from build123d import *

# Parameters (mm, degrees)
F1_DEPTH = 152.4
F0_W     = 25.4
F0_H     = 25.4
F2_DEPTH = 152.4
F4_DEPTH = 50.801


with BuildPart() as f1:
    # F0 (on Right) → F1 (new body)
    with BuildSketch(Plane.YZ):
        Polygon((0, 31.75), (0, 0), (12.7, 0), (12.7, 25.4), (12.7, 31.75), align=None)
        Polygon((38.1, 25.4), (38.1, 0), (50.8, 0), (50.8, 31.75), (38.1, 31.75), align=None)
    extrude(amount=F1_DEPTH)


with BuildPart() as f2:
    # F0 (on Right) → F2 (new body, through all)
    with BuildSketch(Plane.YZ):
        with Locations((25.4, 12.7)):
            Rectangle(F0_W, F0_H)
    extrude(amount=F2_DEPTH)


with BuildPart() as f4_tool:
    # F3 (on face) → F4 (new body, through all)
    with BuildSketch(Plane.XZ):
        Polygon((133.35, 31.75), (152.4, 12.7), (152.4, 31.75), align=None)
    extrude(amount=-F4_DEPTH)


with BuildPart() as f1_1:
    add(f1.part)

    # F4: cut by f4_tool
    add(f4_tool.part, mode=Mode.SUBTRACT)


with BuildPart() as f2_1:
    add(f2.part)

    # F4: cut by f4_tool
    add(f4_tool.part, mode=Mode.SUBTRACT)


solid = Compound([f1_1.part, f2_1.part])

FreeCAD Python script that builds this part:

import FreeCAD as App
import Part
import Sketcher
from FreeCAD import Vector
Q = App.Units.Quantity

doc = App.newDocument("Part")
body = doc.addObject("PartDesign::Body", "Body")
body.AllowCompound = True

# Sketch on YZ plane
sketch1 = body.newObject("Sketcher::SketchObject", "Sketch")
sketch1.AttachmentSupport = (doc.getObject("YZ_Plane"), [""])
sketch1.MapMode = "FlatFace"
sketch1.addGeometry([
    Part.LineSegment(Vector(0, 32, 0), Vector(0, 0, 0)),  # 0
    Part.LineSegment(Vector(0, 0, 0), Vector(13, 0, 0)),  # 1
    Part.LineSegment(Vector(13, 0, 0), Vector(13, 32, 0)),  # 2
    Part.LineSegment(Vector(13, 32, 0), Vector(0, 32, 0)),  # 3
    Part.LineSegment(Vector(38, 0, 0), Vector(51, 0, 0)),  # 4
    Part.LineSegment(Vector(51, 0, 0), Vector(51, 32, 0)),  # 5
    Part.LineSegment(Vector(51, 32, 0), Vector(38, 32, 0)),  # 6
    Part.LineSegment(Vector(38, 32, 0), Vector(38, 0, 0)),  # 7
], False)
sketch1.addConstraint([
    Sketcher.Constraint("Coincident", 0, 2, 1, 1),
    Sketcher.Constraint("Coincident", 1, 2, 2, 1),
    Sketcher.Constraint("Coincident", 2, 2, 3, 1),
    Sketcher.Constraint("Coincident", 3, 2, 0, 1),
    Sketcher.Constraint("Coincident", 4, 2, 5, 1),
    Sketcher.Constraint("Coincident", 5, 2, 6, 1),
    Sketcher.Constraint("Coincident", 6, 2, 7, 1),
    Sketcher.Constraint("Coincident", 7, 2, 4, 1),
    Sketcher.Constraint("Vertical", 0),
    Sketcher.Constraint("Horizontal", 1),
    Sketcher.Constraint("Vertical", 2),
    Sketcher.Constraint("Horizontal", 3),
    Sketcher.Constraint("Horizontal", 4),
    Sketcher.Constraint("Vertical", 5),
    Sketcher.Constraint("Horizontal", 6),
    Sketcher.Constraint("Vertical", 7),
    Sketcher.Constraint("Coincident", 0, 2, -1, 1),
    Sketcher.Constraint("PointOnObject", 4, 2, -1),
    Sketcher.Constraint("Horizontal", 3, 2, 5, 2),
    Sketcher.Constraint("Equal", 3, 4),
    Sketcher.Constraint("DistanceX", 1, 1, 1, 2, Q("0.5 in")),
    Sketcher.Constraint("DistanceX", -1, 1, 4, 2, Q("2 in")),
    Sketcher.Constraint("DistanceY", 0, 2, 0, 1, Q("1.25 in")),
])
pad1 = body.newObject("PartDesign::Pad", "Pad")
pad1.Profile = sketch1
pad1.Length = Q("6 in")
body2 = doc.addObject("PartDesign::Body", "Body001")

# Sketch on YZ plane
sketch2 = body2.newObject("Sketcher::SketchObject", "Sketch001")
sketch2.AttachmentSupport = (doc.getObject("YZ_Plane001"), [""])
sketch2.MapMode = "FlatFace"
sketch2.addGeometry([
    Part.LineSegment(Vector(13, 25, 0), Vector(13, 0, 0)),
    Part.LineSegment(Vector(13, 0, 0), Vector(38, 0, 0)),
    Part.LineSegment(Vector(38, 0, 0), Vector(38, 25, 0)),
    Part.LineSegment(Vector(38, 25, 0), Vector(13, 25, 0)),
], False)
sketch2.addConstraint([
    Sketcher.Constraint("Coincident", 0, 2, 1, 1),
    Sketcher.Constraint("Coincident", 1, 2, 2, 1),
    Sketcher.Constraint("Coincident", 2, 2, 3, 1),
    Sketcher.Constraint("Coincident", 3, 2, 0, 1),
    Sketcher.Constraint("Vertical", 0),
    Sketcher.Constraint("Horizontal", 1),
    Sketcher.Constraint("Vertical", 2),
    Sketcher.Constraint("Horizontal", 3),
    Sketcher.Constraint("PointOnObject", 0, 2, -1),
    Sketcher.Constraint("Equal", 3, 0),
    Sketcher.Constraint("DistanceX", 1, 1, 1, 2, Q("1 in")),
    Sketcher.Constraint("DistanceX", -1, 1, 0, 2, Q("0.5 in")),
])
pad2 = body2.newObject("PartDesign::Pad", "Pad001")
pad2.Profile = sketch2
pad2.Length = Q("6 in")
body3 = doc.addObject("PartDesign::Body", "Body002")

# Sketch on XZ plane
sketch3 = body3.newObject("Sketcher::SketchObject", "Sketch002")
sketch3.AttachmentSupport = (doc.getObject("XZ_Plane002"), [""])
sketch3.MapMode = "FlatFace"
sketch3.addGeometry([
    Part.LineSegment(Vector(133, 32, 0), Vector(152, 13, 0)),
    Part.LineSegment(Vector(152, 13, 0), Vector(152, 32, 0)),
    Part.LineSegment(Vector(152, 32, 0), Vector(133, 32, 0)),
], False)
sketch3.addConstraint([
    Sketcher.Constraint("Coincident", 0, 2, 1, 1),
    Sketcher.Constraint("Coincident", 1, 2, 2, 1),
    Sketcher.Constraint("Coincident", 2, 2, 0, 1),
    Sketcher.Constraint("Vertical", 1),
    Sketcher.Constraint("Horizontal", 2),
    Sketcher.Constraint("Equal", 2, 1),
    Sketcher.Constraint("DistanceX", -1, 1, 0, 2, Q("6 in")),
    Sketcher.Constraint("DistanceX", 2, 2, 2, 1, Q("0.75 in")),
    Sketcher.Constraint("DistanceY", -1, 1, 0, 2, Q("0.5 in")),
])
pad3 = body3.newObject("PartDesign::Pad", "Pad002")
pad3.Profile = sketch3
pad3.Length = 50.801
pad3.Reversed = True
body.AllowCompound = True
doc.recompute()

body4 = doc.addObject("PartDesign::Body", "Body003")
body4.BaseFeature = body3
boolean = body.newObject("PartDesign::Boolean", "Boolean")
boolean.Type = "Cut"
boolean.addObjects([body4])
doc.recompute()

boolean2 = body2.newObject("PartDesign::Boolean", "Boolean001")
boolean2.Type = "Cut"
boolean2.addObjects([body3])

doc.recompute()
